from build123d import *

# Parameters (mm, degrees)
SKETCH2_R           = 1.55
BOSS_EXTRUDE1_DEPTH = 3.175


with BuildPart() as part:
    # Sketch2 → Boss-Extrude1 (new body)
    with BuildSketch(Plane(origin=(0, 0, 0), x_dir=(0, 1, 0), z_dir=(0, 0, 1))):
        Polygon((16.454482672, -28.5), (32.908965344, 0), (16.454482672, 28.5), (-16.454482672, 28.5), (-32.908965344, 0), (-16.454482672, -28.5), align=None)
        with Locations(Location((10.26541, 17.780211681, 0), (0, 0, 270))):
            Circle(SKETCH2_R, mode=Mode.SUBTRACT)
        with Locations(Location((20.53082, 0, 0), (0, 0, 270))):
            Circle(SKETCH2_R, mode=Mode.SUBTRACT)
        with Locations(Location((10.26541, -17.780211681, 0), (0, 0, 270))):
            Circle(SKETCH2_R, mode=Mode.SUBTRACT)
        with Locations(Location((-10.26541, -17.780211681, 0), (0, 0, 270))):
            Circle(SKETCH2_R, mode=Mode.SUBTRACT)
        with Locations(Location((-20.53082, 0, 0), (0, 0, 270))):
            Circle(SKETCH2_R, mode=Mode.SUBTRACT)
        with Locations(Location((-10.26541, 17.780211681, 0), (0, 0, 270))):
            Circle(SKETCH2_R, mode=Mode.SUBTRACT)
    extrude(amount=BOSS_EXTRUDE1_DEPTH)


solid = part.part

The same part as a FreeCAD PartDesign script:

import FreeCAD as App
import Part
import Sketcher
Q = App.Units.Quantity

doc = App.newDocument("Part")
body = doc.addObject("PartDesign::Body", "Body")

sketch1 = body.newObject("Sketcher::SketchObject", "Sketch")
sketch1.AttachmentSupport = (doc.getObject("XY_Plane"), [""])
sketch1.MapMode = "FlatFace"
sketch1.addGeometry(Part.LineSegment(App.Vector(28.5, 16.5, 0), App.Vector(0, 32.9, 0)), False)
sketch1.addGeometry(Part.LineSegment(App.Vector(0, 32.9, 0), App.Vector(-28.5, 16.5, 0)), False)
sketch1.addGeometry(Part.LineSegment(App.Vector(-28.5, 16.5, 0), App.Vector(-28.5, -16.5, 0)), False)
sketch1.addGeometry(Part.LineSegment(App.Vector(-28.5, -16.5, 0), App.Vector(0, -32.9, 0)), False)
sketch1.addGeometry(Part.LineSegment(App.Vector(0, -32.9, 0), App.Vector(28.5, -16.5, 0)), False)
sketch1.addGeometry(Part.LineSegment(App.Vector(28.5, -16.5, 0), App.Vector(28.5, 16.5, 0)), False)
sketch1.addGeometry(Part.Circle(App.Vector(17.8, -10.3, 0), App.Vector(0, 0, 1), 1.6), False)
sketch1.addGeometry(Part.Circle(App.Vector(17.8, 10.3, 0), App.Vector(0, 0, 1), 1.6), False)
sketch1.addGeometry(Part.Circle(App.Vector(0, -20.5, 0), App.Vector(0, 0, 1), 1.6), False)
sketch1.addGeometry(Part.Circle(App.Vector(-17.8, -10.3, 0), App.Vector(0, 0, 1), 1.6), False)
sketch1.addGeometry(Part.Circle(App.Vector(0, 20.5, 0), App.Vector(0, 0, 1), 1.6), False)
sketch1.addGeometry(Part.Circle(App.Vector(-17.8, 10.3, 0), App.Vector(0, 0, 1), 1.6), False)
sketch1.addConstraint(Sketcher.Constraint("Coincident", 0, 2, 1, 1))
sketch1.addConstraint(Sketcher.Constraint("Coincident", 1, 2, 2, 1))
sketch1.addConstraint(Sketcher.Constraint("Coincident", 2, 2, 3, 1))
sketch1.addConstraint(Sketcher.Constraint("Coincident", 3, 2, 4, 1))
sketch1.addConstraint(Sketcher.Constraint("Coincident", 4, 2, 5, 1))
sketch1.addConstraint(Sketcher.Constraint("Coincident", 5, 2, 0, 1))
sketch1.addConstraint(Sketcher.Constraint("Vertical", 2))
sketch1.addConstraint(Sketcher.Constraint("Vertical", 5))
sketch1.addConstraint(Sketcher.Constraint("Equal", 6, 7))
sketch1.addConstraint(Sketcher.Constraint("Equal", 7, 8))
sketch1.addConstraint(Sketcher.Constraint("Equal", 8, 9))
sketch1.addConstraint(Sketcher.Constraint("Equal", 9, 10))
sketch1.addConstraint(Sketcher.Constraint("Equal", 10, 11))
sketch1.addConstraint(Sketcher.Constraint("Symmetric", 7, 3, 9, 3, -1, 1))
sketch1.addConstraint(Sketcher.Constraint("Symmetric", 8, 3, 10, 3, -1, 1))
sketch1.addConstraint(Sketcher.Constraint("Symmetric", 6, 3, 11, 3, -1, 1))
sketch1.addConstraint(Sketcher.Constraint("Symmetric", 0, 2, 3, 2, -1, 1))
sketch1.addConstraint(Sketcher.Constraint("Symmetric", 1, 2, 4, 2, -1, 1))
sketch1.addConstraint(Sketcher.Constraint("Symmetric", 6, 3, 9, 3, -2))
sketch1.addConstraint(Sketcher.Constraint("PointOnObject", 8, 3, -2))
sketch1.addConstraint(Sketcher.Constraint("PointOnObject", 0, 2, -2))
sketch1.addConstraint(Sketcher.Constraint("Parallel", 0, 3))
sketch1.addConstraint(Sketcher.Constraint("Horizontal", 2, 2, 4, 2))
sketch1.addConstraint(Sketcher.Constraint("Diameter", 6, Q("3.1 mm")))
sketch1.addConstraint(Sketcher.Constraint("Angle", 0, Q("150 deg")))
sketch1.addConstraint(Sketcher.Constraint("DistanceX", 1, 2, -1, 1, Q("28.5 mm")))
sketch1.addConstraint(Sketcher.Constraint("DistanceY", 2, 2, 2, 1, Q("32.908965 mm")))
sketch1.addConstraint(Sketcher.Constraint("DistanceX", -1, 1, 6, 3, Q("17.780212 mm")))
sketch1.addConstraint(Sketcher.Constraint("DistanceY", 6, 3, -1, 1, Q("10.26541 mm")))
sketch1.addConstraint(Sketcher.Constraint("DistanceY", 8, 3, -1, 1, Q("20.53082 mm")))
pad1 = body.newObject("PartDesign::Pad", "Pad")
pad1.Profile = sketch1
pad1.Length = 3.175

doc.recompute()
